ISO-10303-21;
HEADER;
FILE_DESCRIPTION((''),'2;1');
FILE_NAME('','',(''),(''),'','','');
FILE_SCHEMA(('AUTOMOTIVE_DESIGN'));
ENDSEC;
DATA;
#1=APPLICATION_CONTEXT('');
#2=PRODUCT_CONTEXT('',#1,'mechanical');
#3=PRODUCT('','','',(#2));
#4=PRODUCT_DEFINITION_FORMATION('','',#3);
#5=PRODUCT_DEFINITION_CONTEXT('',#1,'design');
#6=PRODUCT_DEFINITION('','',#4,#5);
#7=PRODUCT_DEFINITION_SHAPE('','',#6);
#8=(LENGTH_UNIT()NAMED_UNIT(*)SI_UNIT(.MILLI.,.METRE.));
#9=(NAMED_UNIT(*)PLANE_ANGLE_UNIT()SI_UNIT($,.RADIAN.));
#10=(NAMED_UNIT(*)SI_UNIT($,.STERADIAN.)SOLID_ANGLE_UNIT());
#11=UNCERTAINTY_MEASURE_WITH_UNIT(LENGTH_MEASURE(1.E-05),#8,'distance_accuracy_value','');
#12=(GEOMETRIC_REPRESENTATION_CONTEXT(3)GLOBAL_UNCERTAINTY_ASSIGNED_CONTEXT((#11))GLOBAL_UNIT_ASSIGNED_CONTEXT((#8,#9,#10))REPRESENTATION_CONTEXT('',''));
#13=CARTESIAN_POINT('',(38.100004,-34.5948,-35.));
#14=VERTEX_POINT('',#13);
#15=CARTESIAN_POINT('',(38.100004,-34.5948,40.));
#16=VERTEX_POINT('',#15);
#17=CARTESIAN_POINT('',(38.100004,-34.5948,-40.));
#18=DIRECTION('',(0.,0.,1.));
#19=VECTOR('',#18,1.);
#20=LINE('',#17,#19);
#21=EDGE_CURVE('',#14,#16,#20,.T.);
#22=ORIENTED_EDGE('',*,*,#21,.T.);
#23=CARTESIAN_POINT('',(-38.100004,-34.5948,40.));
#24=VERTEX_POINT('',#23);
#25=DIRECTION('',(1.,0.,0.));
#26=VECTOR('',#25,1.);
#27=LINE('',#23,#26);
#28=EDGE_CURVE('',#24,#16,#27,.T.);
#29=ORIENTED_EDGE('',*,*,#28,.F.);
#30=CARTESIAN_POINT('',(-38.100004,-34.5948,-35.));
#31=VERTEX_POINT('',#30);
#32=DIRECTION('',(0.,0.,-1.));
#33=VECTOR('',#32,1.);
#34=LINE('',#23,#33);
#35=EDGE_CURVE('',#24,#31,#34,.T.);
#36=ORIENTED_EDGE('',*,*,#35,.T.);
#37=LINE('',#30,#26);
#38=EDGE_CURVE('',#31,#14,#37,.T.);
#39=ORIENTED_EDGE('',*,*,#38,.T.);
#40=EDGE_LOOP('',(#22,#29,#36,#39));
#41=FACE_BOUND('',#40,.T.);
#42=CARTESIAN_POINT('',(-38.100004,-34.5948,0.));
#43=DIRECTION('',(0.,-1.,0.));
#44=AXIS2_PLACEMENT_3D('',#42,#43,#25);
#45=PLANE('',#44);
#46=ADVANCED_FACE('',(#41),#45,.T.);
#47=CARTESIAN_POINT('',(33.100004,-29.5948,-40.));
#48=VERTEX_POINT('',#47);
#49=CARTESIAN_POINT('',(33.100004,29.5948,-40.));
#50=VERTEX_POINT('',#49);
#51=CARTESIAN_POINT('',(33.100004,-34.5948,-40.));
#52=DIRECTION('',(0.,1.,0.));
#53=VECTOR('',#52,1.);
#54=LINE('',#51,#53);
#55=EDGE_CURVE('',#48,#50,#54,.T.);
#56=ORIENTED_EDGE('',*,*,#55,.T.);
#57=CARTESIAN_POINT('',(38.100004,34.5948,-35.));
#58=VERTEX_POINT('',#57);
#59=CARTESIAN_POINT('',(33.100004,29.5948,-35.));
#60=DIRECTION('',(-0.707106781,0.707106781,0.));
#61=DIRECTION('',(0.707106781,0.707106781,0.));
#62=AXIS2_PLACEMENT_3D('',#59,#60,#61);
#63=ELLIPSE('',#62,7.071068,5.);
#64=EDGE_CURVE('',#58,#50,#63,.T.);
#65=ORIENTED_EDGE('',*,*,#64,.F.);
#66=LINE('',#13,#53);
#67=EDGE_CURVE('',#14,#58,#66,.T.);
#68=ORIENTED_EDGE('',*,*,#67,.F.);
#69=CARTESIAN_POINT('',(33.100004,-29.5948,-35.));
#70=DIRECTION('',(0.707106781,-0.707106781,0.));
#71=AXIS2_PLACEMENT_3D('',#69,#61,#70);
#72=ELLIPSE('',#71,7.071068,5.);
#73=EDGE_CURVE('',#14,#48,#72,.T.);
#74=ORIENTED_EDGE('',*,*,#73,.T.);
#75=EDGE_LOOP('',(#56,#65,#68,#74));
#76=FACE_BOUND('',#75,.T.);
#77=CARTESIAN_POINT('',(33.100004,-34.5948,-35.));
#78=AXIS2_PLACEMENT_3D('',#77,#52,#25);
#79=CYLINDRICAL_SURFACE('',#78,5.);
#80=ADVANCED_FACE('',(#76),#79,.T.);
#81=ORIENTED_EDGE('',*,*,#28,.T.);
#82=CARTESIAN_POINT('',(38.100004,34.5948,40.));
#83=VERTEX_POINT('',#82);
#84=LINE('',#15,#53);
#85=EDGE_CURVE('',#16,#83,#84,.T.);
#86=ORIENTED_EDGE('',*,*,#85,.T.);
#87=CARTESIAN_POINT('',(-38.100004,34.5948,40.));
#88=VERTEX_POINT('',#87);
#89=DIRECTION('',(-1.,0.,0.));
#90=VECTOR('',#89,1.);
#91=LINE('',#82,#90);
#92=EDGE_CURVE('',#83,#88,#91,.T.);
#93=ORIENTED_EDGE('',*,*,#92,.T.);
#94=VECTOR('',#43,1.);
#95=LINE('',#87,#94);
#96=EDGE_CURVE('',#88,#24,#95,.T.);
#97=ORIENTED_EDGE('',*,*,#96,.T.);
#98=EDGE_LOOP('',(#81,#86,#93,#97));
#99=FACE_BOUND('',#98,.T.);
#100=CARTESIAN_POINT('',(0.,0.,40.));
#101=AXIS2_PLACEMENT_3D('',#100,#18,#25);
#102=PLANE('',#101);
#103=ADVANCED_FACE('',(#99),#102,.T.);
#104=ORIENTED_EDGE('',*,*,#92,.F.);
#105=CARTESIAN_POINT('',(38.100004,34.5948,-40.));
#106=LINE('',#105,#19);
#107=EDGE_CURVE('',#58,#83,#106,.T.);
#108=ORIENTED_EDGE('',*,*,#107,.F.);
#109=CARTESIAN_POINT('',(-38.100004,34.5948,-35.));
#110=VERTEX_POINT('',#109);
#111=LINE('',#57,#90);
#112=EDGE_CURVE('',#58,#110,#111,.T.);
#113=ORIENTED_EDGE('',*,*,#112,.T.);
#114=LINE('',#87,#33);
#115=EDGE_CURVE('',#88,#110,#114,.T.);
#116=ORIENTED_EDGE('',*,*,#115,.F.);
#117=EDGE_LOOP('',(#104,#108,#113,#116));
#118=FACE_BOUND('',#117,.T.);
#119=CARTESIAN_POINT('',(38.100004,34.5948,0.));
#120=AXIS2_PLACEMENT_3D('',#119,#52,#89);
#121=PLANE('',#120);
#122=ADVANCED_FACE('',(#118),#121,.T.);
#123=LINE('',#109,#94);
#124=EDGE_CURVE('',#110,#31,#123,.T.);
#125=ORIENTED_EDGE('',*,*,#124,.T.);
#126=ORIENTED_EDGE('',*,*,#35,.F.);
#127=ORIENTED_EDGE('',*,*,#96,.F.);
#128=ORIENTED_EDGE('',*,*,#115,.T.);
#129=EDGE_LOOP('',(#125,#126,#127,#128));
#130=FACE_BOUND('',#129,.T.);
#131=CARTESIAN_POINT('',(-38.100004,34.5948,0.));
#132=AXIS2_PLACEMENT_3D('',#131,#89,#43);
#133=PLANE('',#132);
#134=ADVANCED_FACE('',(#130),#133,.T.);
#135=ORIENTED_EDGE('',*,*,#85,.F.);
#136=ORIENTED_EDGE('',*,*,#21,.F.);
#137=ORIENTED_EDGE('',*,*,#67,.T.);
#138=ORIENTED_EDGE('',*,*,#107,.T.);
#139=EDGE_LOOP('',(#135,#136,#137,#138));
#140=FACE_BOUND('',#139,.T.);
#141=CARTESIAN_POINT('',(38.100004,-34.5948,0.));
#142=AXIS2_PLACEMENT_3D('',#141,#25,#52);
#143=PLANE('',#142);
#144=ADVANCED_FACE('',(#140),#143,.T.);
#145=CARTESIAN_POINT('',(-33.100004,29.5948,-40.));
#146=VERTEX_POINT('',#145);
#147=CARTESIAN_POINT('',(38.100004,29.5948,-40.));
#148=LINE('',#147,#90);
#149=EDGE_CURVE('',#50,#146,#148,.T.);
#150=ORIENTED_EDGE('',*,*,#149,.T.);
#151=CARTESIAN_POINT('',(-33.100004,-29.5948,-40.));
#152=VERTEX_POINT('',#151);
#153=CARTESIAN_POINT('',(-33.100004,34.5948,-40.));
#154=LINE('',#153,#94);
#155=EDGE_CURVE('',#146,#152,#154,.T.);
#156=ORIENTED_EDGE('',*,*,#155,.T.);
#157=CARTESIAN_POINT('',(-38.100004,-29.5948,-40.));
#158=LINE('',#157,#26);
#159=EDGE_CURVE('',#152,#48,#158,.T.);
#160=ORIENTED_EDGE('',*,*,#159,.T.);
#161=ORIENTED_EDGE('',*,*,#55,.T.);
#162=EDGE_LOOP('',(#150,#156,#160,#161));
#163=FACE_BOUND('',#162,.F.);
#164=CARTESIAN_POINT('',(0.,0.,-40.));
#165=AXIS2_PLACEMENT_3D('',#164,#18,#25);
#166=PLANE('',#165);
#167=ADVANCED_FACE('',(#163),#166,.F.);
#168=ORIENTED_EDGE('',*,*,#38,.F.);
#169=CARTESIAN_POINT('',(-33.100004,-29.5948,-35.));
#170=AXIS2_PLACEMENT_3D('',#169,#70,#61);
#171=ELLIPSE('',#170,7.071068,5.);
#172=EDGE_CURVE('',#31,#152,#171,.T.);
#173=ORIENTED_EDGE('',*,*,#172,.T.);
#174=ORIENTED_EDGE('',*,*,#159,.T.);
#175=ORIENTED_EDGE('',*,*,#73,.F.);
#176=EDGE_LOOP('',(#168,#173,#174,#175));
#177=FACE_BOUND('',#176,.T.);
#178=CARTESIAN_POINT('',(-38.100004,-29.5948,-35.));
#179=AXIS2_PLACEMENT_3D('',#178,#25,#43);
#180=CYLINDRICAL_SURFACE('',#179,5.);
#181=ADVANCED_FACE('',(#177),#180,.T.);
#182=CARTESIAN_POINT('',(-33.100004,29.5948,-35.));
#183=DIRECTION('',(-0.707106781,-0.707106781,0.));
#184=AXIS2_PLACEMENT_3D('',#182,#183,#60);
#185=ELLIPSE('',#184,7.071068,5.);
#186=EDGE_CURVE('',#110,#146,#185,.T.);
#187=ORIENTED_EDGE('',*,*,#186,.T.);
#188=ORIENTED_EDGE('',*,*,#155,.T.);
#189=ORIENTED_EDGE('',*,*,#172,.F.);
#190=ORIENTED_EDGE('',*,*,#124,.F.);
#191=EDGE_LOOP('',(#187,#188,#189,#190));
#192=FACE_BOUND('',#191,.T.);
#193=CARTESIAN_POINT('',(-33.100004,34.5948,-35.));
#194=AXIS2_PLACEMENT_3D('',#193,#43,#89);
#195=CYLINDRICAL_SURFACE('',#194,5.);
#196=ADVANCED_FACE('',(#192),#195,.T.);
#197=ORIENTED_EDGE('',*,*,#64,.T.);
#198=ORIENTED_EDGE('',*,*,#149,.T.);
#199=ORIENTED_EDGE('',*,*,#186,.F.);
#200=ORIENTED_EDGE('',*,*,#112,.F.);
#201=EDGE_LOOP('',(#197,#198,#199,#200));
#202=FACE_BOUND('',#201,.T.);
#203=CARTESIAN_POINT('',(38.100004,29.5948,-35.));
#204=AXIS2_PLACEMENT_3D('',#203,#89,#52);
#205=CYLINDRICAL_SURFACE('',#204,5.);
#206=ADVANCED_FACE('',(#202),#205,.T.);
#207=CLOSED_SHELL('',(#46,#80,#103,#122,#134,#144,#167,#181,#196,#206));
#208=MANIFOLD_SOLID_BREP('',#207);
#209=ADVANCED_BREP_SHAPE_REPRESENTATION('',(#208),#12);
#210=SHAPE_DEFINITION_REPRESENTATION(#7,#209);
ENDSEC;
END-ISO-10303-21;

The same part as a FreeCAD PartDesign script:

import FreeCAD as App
import Part
import Sketcher
from FreeCAD import Vector


def edges_at(feature, points):
    """Names of the edges that pass closest to the given points."""
    edges = feature.Shape.Edges
    near = lambda p: min(range(len(edges)), key=lambda i: edges[i].distToShape(Part.Vertex(*p))[0])
    return sorted({f"Edge{near(p) + 1}" for p in points})

doc = App.newDocument("Part")
body = doc.addObject("PartDesign::Body", "Body")

# Sketch on XY plane
sketch1 = body.newObject("Sketcher::SketchObject", "Sketch")
sketch1.AttachmentSupport = (doc.getObject("XY_Plane"), [""])
sketch1.MapMode = "FlatFace"
sketch1.addGeometry([
    Part.LineSegment(Vector(-38.100004, -34.5948, 0), Vector(38.100004, -34.5948, 0)),
    Part.LineSegment(Vector(38.100004, -34.5948, 0), Vector(38.100004, 34.5948, 0)),
    Part.LineSegment(Vector(38.100004, 34.5948, 0), Vector(-38.100004, 34.5948, 0)),
    Part.LineSegment(Vector(-38.100004, 34.5948, 0), Vector(-38.100004, -34.5948, 0)),
], False)
sketch1.addConstraint([
    Sketcher.Constraint("Coincident", 0, 2, 1, 1),
    Sketcher.Constraint("Coincident", 1, 2, 2, 1),
    Sketcher.Constraint("Coincident", 2, 2, 3, 1),
    Sketcher.Constraint("Coincident", 3, 2, 0, 1),
    Sketcher.Constraint("Horizontal", 0),
    Sketcher.Constraint("Vertical", 1),
    Sketcher.Constraint("Horizontal", 2),
    Sketcher.Constraint("Vertical", 3),
    Sketcher.Constraint("Symmetric", 0, 2, 2, 2, -1, 1),
    Sketcher.Constraint("DistanceY", 1, 1, 1, 2, 69.1896),
    Sketcher.Constraint("DistanceX", 0, 1, 0, 2, 76.200008),
])
pad1 = body.newObject("PartDesign::Pad", "Pad")
pad1.Profile = sketch1
pad1.Length = 80
pad1.Midplane = True
doc.recompute()

fillet = body.newObject("PartDesign::Fillet", "Fillet")
fillet.Base = (pad1, edges_at(pad1, [
    (0, -34.595, -40),
    (38.1, 0, -40),
    (0, 34.595, -40),
    (-38.1, 0, -40),
]))
fillet.Radius = 5

doc.recompute()
